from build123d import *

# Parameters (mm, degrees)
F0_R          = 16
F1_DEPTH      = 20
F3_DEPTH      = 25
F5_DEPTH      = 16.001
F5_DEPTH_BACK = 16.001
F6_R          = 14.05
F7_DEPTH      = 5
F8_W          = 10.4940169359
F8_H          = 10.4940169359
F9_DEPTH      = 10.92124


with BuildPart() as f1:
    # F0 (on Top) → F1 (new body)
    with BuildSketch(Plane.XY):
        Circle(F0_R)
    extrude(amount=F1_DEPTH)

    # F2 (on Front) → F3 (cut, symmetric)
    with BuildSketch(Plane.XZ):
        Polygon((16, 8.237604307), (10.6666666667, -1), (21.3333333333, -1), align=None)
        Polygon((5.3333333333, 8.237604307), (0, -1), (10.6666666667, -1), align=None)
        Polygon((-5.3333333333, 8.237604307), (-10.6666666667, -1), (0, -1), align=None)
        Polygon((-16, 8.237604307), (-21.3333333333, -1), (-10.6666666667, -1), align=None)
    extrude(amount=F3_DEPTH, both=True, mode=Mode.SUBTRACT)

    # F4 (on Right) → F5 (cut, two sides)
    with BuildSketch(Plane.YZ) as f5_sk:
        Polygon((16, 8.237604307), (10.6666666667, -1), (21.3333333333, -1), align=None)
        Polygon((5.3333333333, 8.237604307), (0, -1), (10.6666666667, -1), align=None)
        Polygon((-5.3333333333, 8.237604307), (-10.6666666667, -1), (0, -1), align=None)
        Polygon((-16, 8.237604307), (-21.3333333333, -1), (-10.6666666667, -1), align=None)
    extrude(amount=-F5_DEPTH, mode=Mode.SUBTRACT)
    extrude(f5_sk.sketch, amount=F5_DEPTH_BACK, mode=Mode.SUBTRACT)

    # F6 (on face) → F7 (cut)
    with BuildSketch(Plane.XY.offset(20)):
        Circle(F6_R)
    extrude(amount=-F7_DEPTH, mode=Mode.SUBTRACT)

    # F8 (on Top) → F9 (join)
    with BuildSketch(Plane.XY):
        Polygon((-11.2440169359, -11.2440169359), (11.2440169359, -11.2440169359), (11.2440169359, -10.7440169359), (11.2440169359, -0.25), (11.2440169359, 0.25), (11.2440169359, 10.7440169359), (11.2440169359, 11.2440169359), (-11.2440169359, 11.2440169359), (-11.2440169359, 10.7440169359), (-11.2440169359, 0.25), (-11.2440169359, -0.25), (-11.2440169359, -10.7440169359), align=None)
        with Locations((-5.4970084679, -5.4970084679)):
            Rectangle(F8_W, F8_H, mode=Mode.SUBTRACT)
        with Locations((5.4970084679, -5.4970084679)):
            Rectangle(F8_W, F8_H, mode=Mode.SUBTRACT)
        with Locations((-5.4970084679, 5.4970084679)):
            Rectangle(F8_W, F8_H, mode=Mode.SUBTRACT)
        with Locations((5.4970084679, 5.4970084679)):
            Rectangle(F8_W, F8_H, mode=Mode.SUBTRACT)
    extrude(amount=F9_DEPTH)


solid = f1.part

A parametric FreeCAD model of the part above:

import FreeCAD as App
import Part
import Sketcher
Q = App.Units.Quantity


def add_polygon(sketch, points):
    """Adds a closed chain of lines whose ends are joined by coincident constraints."""
    first, n = sketch.GeometryCount, len(points)
    for a, b in zip(points, points[1:] + points[:1]):
        sketch.addGeometry(Part.LineSegment(App.Vector(*a, 0), App.Vector(*b, 0)), False)
    for i in range(n):
        sketch.addConstraint(Sketcher.Constraint("Coincident", first + i, 2, first + (i + 1) % n, 1))

doc = App.newDocument("Part")
params = doc.addObject("Spreadsheet::Sheet", "Params")
for row, (alias, value) in enumerate([
    ("sketch1_diameter", "32 mm"),
    ("pad1_length", "20 mm"),
    ("pocket1_length", "50 mm"),
    ("sketch4_diameter", "28.1 mm"),
    ("pocket3_length", "5 mm"),
    ("pad2_length", "10.92124 mm"),
], start=1):
    params.set(f"A{row}", alias)
    params.set(f"B{row}", "=" + value)
    params.setAlias(f"B{row}", alias)

body = doc.addObject("PartDesign::Body", "Body")

# Sketch on XY plane
sketch1 = body.newObject("Sketcher::SketchObject", "Sketch")
sketch1.AttachmentSupport = (doc.getObject("XY_Plane"), [""])
sketch1.MapMode = "FlatFace"
sketch1.addGeometry(Part.Circle(App.Vector(0, 0, 0), App.Vector(0, 0, 1), 16), False)
sketch1.addConstraint([
    Sketcher.Constraint("Coincident", 0, 3, -1, 1),
    Sketcher.Constraint("Diameter", 0, Q("32 mm")),
])
sketch1.setExpression("Constraints[1]", "Params.sketch1_diameter")
pad1 = body.newObject("PartDesign::Pad", "Pad")
pad1.Profile = sketch1
pad1.setExpression("Length", "Params.pad1_length")

# Sketch on XZ plane
sketch2 = body.newObject("Sketcher::SketchObject", "Sketch001")
sketch2.AttachmentSupport = (doc.getObject("XZ_Plane"), [""])
sketch2.MapMode = "FlatFace"
add_polygon(sketch2, [(16, 8.237604), (10.666667, -1), (21.333333, -1)])  # lines 0-2
add_polygon(sketch2, [(5.333333, 8.237604), (0, -1), (10.666667, -1)])  # lines 3-5
add_polygon(sketch2, [(-5.333333, 8.237604), (-10.666667, -1), (0, -1)])  # lines 6-8
add_polygon(sketch2, [(-16, 8.237604), (-21.333333, -1), (-10.666667, -1)])  # lines 9-11
sketch2.addConstraint([
    Sketcher.Constraint("Horizontal", 1),
    Sketcher.Constraint("Horizontal", 4),
    Sketcher.Constraint("Horizontal", 7),
    Sketcher.Constraint("Horizontal", 10),
    Sketcher.Constraint("Coincident", 4, 2, 0, 2),
    Sketcher.Constraint("Coincident", 7, 2, 3, 2),
    Sketcher.Constraint("Coincident", 10, 2, 6, 2),
    Sketcher.Constraint("Symmetric", 5, 2, 8, 2, -2),
    Sketcher.Constraint("Symmetric", 2, 2, 11, 2, -2),
    Sketcher.Constraint("PointOnObject", 3, 2, -2),
    Sketcher.Constraint("Parallel", 0, 3),
    Sketcher.Constraint("Parallel", 2, 5),
    Sketcher.Constraint("Parallel", 3, 6),
    Sketcher.Constraint("Parallel", 5, 8),
    Sketcher.Constraint("Parallel", 6, 9),
    Sketcher.Constraint("Horizontal", 2, 2, 5, 2),
    Sketcher.Constraint("Angle", 0, Q("-120 deg")),
    Sketcher.Constraint("DistanceY", 0, 2, -1, 1, Q("1 mm")),
    Sketcher.Constraint("DistanceX", -1, 1, 2, 2, Q("16 mm")),
])
pocket1 = body.newObject("PartDesign::Pocket", "Pocket")
pocket1.Profile = sketch2
pocket1.setExpression("Length", "Params.pocket1_length")
pocket1.Midplane = True

# Sketch on YZ plane
sketch3 = body.newObject("Sketcher::SketchObject", "Sketch002")
sketch3.AttachmentSupport = (doc.getObject("YZ_Plane"), [""])
sketch3.MapMode = "FlatFace"
add_polygon(sketch3, [(16, 8.237604), (10.666667, -1), (21.333333, -1)])  # lines 0-2
add_polygon(sketch3, [(5.333333, 8.237604), (0, -1), (10.666667, -1)])  # lines 3-5
add_polygon(sketch3, [(-5.333333, 8.237604), (-10.666667, -1), (0, -1)])  # lines 6-8
add_polygon(sketch3, [(-16, 8.237604), (-21.333333, -1), (-10.666667, -1)])  # lines 9-11
sketch3.addConstraint([
    Sketcher.Constraint("Horizontal", 1),
    Sketcher.Constraint("Horizontal", 4),
    Sketcher.Constraint("Horizontal", 7),
    Sketcher.Constraint("Horizontal", 10),
    Sketcher.Constraint("Coincident", 4, 2, 0, 2),
    Sketcher.Constraint("Coincident", 7, 2, 3, 2),
    Sketcher.Constraint("Coincident", 10, 2, 6, 2),
    Sketcher.Constraint("Symmetric", 5, 2, 8, 2, -2),
    Sketcher.Constraint("Symmetric", 2, 2, 11, 2, -2),
    Sketcher.Constraint("PointOnObject", 3, 2, -2),
    Sketcher.Constraint("Parallel", 0, 3),
    Sketcher.Constraint("Parallel", 2, 5),
    Sketcher.Constraint("Parallel", 3, 6),
    Sketcher.Constraint("Parallel", 5, 8),
    Sketcher.Constraint("Parallel", 6, 9),
    Sketcher.Constraint("Horizontal", 2, 2, 5, 2),
    Sketcher.Constraint("Angle", 0, Q("-120 deg")),
    Sketcher.Constraint("DistanceY", 0, 2, -1, 1, Q("1 mm")),
    Sketcher.Constraint("DistanceX", -1, 1, 2, 2, Q("16 mm")),
])
pocket2 = body.newObject("PartDesign::Pocket", "Pocket001")
pocket2.Profile = sketch3
pocket2.Type = "ThroughAll"
pocket2.Midplane = True

# Sketch on XY plane
sketch4 = body.newObject("Sketcher::SketchObject", "Sketch003")
sketch4.AttachmentSupport = (doc.getObject("XY_Plane"), [""])
sketch4.MapMode = "FlatFace"
sketch4.AttachmentOffset = App.Placement(App.Vector(0, 0, 20), App.Rotation())
sketch4.addGeometry(Part.Circle(App.Vector(0, 0, 0), App.Vector(0, 0, 1), 14.05), False)
sketch4.addConstraint([
    Sketcher.Constraint("Coincident", 0, 3, -1, 1),
    Sketcher.Constraint("Diameter", 0, Q("28.1 mm")),
])
sketch4.setExpression("Constraints[1]", "Params.sketch4_diameter")
pocket3 = body.newObject("PartDesign::Pocket", "Pocket002")
pocket3.Profile = sketch4
pocket3.setExpression("Length", "Params.pocket3_length")

# Sketch on XY plane
sketch5 = body.newObject("Sketcher::SketchObject", "Sketch004")
sketch5.AttachmentSupport = (doc.getObject("XY_Plane"), [""])
sketch5.MapMode = "FlatFace"
add_polygon(sketch5, [(-11.244017, -11.244017), (11.244017, -11.244017), (11.244017, 11.244017), (-11.244017, 11.244017)])  # lines 0-3
add_polygon(sketch5, [(-0.25, -10.744017), (-10.744017, -10.744017), (-10.744017, -0.25), (-0.25, -0.25)])  # lines 4-7
add_polygon(sketch5, [(10.744017, -10.744017), (0.25, -10.744017), (0.25, -0.25), (10.744017, -0.25)])  # lines 8-11
add_polygon(sketch5, [(-0.25, 0.25), (-10.744017, 0.25), (-10.744017, 10.744017), (-0.25, 10.744017)])  # lines 12-15
add_polygon(sketch5, [(10.744017, 0.25), (0.25, 0.25), (0.25, 10.744017), (10.744017, 10.744017)])  # lines 16-19
sketch5.addConstraint([
    Sketcher.Constraint("Horizontal", 0),
    Sketcher.Constraint("Vertical", 1),
    Sketcher.Constraint("Horizontal", 2),
    Sketcher.Constraint("Vertical", 3),
    Sketcher.Constraint("Horizontal", 4),
    Sketcher.Constraint("Vertical", 5),
    Sketcher.Constraint("Horizontal", 6),
    Sketcher.Constraint("Vertical", 7),
    Sketcher.Constraint("Horizontal", 8),
    Sketcher.Constraint("Vertical", 9),
    Sketcher.Constraint("Horizontal", 10),
    Sketcher.Constraint("Vertical", 11),
    Sketcher.Constraint("Horizontal", 12),
    Sketcher.Constraint("Vertical", 13),
    Sketcher.Constraint("Horizontal", 14),
    Sketcher.Constraint("Vertical", 15),
    Sketcher.Constraint("Horizontal", 16),
    Sketcher.Constraint("Vertical", 17),
    Sketcher.Constraint("Horizontal", 18),
    Sketcher.Constraint("Vertical", 19),
    Sketcher.Constraint("Symmetric", 0, 2, 2, 2, -1, 1),
    Sketcher.Constraint("Symmetric", 10, 2, 12, 2, -1, 1),
    Sketcher.Constraint("Symmetric", 8, 2, 14, 2, -1, 1),
    Sketcher.Constraint("Symmetric", 6, 2, 16, 2, -1, 1),
    Sketcher.Constraint("Symmetric", 4, 2, 18, 2, -1, 1),
    Sketcher.Constraint("Symmetric", 7, 2, 8, 2, -2),
    Sketcher.Constraint("Symmetric", 5, 2, 10, 2, -2),
    Sketcher.Constraint("Equal", 2, 1),
    Sketcher.Constraint("Equal", 18, 5),
    Sketcher.Constraint("DistanceX", 3, 2, 4, 2, Q("0.5 mm")),
    Sketcher.Constraint("DistanceY", 3, 2, 4, 2, Q("0.5 mm")),
    Sketcher.Constraint("DistanceX", 7, 2, 8, 2, Q("0.5 mm")),
    Sketcher.Constraint("DistanceX", 0, 1, 0, 2, Q("22.488034 mm")),
])
pad2 = body.newObject("PartDesign::Pad", "Pad001")
pad2.Profile = sketch5
pad2.setExpression("Length", "Params.pad2_length")

doc.recompute()
